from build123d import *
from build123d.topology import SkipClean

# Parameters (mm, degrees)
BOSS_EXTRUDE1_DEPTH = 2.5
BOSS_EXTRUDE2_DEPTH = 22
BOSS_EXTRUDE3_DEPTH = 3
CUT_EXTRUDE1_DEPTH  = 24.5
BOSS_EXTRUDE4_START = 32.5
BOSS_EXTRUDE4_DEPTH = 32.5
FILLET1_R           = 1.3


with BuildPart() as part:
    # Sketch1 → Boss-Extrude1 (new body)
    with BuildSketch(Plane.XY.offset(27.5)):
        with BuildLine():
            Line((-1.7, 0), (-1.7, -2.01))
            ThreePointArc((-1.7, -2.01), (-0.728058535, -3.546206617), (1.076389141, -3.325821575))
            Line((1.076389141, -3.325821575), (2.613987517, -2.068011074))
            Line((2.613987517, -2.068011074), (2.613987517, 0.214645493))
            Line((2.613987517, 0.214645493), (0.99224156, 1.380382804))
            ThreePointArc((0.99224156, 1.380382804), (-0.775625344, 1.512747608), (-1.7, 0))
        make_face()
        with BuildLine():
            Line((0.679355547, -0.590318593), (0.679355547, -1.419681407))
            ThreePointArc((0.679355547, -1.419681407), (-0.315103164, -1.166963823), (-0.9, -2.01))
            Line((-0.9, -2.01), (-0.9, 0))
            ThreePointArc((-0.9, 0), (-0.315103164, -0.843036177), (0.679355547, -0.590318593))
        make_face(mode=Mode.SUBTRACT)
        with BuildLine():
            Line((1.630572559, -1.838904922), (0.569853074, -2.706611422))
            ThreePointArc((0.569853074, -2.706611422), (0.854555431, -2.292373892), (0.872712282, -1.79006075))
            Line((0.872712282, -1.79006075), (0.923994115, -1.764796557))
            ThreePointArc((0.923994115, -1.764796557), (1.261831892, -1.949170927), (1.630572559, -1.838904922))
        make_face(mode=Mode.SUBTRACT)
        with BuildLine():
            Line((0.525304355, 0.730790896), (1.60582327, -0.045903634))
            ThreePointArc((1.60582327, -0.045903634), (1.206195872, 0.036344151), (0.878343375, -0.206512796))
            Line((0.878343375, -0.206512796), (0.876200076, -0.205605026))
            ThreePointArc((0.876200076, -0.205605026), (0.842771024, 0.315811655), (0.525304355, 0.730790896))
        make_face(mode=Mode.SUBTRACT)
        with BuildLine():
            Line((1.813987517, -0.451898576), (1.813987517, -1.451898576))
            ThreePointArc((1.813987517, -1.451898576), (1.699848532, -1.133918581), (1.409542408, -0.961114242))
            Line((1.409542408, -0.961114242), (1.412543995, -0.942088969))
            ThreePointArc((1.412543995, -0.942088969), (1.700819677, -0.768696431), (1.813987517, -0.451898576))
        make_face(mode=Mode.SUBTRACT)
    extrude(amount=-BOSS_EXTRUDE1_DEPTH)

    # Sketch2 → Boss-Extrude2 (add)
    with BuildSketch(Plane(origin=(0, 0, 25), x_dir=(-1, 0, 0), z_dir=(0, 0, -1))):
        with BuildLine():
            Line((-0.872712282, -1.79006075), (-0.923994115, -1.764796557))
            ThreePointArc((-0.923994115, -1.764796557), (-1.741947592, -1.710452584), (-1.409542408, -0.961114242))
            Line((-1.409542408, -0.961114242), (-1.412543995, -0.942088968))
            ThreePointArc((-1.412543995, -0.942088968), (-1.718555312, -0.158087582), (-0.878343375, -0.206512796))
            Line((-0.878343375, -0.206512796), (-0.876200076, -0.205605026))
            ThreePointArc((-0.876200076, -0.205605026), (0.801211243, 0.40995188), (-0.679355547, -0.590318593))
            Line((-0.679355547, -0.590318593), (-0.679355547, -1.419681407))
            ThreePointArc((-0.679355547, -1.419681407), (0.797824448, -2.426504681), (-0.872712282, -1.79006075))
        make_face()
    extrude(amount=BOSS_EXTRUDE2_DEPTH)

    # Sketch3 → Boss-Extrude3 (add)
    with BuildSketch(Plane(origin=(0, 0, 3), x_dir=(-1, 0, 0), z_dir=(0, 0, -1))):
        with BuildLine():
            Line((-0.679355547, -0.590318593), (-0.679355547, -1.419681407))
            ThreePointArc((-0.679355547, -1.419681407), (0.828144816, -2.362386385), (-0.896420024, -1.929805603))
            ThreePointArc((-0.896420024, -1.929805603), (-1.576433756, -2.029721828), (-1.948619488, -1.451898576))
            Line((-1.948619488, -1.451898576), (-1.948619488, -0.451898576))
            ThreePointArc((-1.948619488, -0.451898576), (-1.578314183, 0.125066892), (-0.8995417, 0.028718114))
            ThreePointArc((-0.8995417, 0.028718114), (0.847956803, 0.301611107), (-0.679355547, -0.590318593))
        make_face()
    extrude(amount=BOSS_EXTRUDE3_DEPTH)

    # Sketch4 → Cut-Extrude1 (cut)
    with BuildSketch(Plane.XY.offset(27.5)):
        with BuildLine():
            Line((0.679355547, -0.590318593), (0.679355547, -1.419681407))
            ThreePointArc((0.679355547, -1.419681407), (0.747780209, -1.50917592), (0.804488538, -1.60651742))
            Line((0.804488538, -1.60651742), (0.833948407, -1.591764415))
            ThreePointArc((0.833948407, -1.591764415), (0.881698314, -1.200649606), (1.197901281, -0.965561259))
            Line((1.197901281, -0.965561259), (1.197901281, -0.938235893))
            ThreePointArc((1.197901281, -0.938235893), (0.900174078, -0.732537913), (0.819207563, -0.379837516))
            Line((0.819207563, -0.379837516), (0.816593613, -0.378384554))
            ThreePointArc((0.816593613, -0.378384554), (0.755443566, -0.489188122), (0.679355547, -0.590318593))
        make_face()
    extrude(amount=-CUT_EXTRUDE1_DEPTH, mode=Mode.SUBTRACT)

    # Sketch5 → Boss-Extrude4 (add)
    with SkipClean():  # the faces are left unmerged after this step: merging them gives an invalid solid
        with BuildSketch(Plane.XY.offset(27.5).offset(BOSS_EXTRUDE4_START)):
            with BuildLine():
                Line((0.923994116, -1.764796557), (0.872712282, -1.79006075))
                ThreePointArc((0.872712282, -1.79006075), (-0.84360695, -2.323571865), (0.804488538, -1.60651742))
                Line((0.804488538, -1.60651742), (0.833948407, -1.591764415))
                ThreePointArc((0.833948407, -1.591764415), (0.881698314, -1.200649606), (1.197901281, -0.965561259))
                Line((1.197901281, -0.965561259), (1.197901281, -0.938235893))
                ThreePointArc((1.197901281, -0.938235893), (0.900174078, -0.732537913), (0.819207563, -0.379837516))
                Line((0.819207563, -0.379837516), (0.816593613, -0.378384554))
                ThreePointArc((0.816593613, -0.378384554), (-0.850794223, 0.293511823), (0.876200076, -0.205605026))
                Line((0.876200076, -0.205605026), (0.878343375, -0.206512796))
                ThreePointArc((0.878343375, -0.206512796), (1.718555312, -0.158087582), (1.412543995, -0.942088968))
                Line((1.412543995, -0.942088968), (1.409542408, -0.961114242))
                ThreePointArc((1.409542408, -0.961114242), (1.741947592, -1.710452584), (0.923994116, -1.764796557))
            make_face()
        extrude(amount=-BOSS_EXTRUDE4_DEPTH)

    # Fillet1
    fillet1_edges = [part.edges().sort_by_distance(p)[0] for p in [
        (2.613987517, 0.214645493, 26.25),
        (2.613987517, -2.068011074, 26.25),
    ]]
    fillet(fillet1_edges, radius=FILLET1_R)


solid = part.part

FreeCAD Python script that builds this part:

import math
import FreeCAD as App
import Part
import Sketcher

V = App.Vector
Q = App.Units.Quantity


def edges_at(feature, points):
    """Names of the edges that pass closest to the given points."""
    edges = feature.Shape.Edges
    near = lambda p: min(range(len(edges)), key=lambda i: edges[i].distToShape(Part.Vertex(*p))[0])
    return sorted({f"Edge{near(p) + 1}" for p in points})

doc = App.newDocument("Part")
body = doc.addObject("PartDesign::Body", "Body")

# Sketch on XY plane
sketch1 = doc.addObject("Sketcher::SketchObject", "Sketch")
body.addObject(sketch1)
sketch1.AttachmentSupport = (doc.XY_Plane, [""])
sketch1.MapMode = "FlatFace"
sketch1.AttachmentOffset = App.Placement(V(0, 0, 27.5), App.Rotation())
sketch1.addGeometry(Part.LineSegment(V(-1.7, 0, 0), V(-1.7, -2.01, 0)), False)
sketch1.addGeometry(Part.ArcOfCircle(Part.Circle(V(0, -2.01, 0), V(0, 0, 1), 1.7), math.radians(180), math.radians(309)), False)
sketch1.addGeometry(Part.LineSegment(V(1.0764, -3.3258, 0), V(2.614, -2.068, 0)), False)
sketch1.addGeometry(Part.LineSegment(V(2.614, -2.068, 0), V(2.614, 0.2146, 0)), False)
sketch1.addGeometry(Part.LineSegment(V(2.614, 0.2146, 0), V(0.9922, 1.3804, 0)), False)
sketch1.addGeometry(Part.ArcOfCircle(Part.Circle(V(0, 0, 0), V(0, 0, 1), 1.7), math.radians(54), math.radians(180)), False)
sketch1.addGeometry(Part.ArcOfCircle(Part.Circle(V(0, 0, 0), V(0, 0, 1), 0.9), math.radians(180), math.radians(319)), False)
sketch1.addGeometry(Part.LineSegment(V(0.6794, -0.5903, 0), V(0.6794, -1.4197, 0)), False)
sketch1.addGeometry(Part.ArcOfCircle(Part.Circle(V(0, -2.01, 0), V(0, 0, 1), 0.9), math.radians(41), math.radians(180)), False)
sketch1.addGeometry(Part.LineSegment(V(-0.9, -2.01, 0), V(-0.9, 0, 0)), False)
sketch1.addGeometry(Part.ArcOfCircle(Part.Circle(V(1.314, -1.4519, 0), V(0, 0, 1), 0.5), math.radians(-141), math.radians(-51)), False)
sketch1.addGeometry(Part.LineSegment(V(1.6306, -1.8389, 0), V(0.5699, -2.7066, 0)), False)
sketch1.addGeometry(Part.ArcOfCircle(Part.Circle(V(0, -2.01, 0), V(0, 0, 1), 0.9), math.radians(-51), math.radians(14)), False)
sketch1.addGeometry(Part.LineSegment(V(0.8727, -1.7901, 0), V(0.924, -1.7648, 0)), False)
sketch1.addGeometry(Part.ArcOfCircle(Part.Circle(V(1.314, -0.4519, 0), V(0, 0, 1), 0.5), math.radians(-79), math.radians(0)), False)
sketch1.addGeometry(Part.LineSegment(V(1.814, -0.4519, 0), V(1.814, -1.4519, 0)), False)
sketch1.addGeometry(Part.ArcOfCircle(Part.Circle(V(1.314, -1.4519, 0), V(0, 0, 1), 0.5), math.radians(0), math.radians(79)), False)
sketch1.addGeometry(Part.LineSegment(V(1.4095, -0.9611, 0), V(1.4125, -0.9421, 0)), False)
sketch1.addGeometry(Part.ArcOfCircle(Part.Circle(V(0, 0, 0), V(0, 0, 1), 0.9), math.radians(-13), math.radians(54)), False)
sketch1.addGeometry(Part.LineSegment(V(0.5253, 0.7308, 0), V(1.6058, -0.0459, 0)), False)
sketch1.addGeometry(Part.ArcOfCircle(Part.Circle(V(1.314, -0.4519, 0), V(0, 0, 1), 0.5), math.radians(54), math.radians(151)), False)
sketch1.addGeometry(Part.LineSegment(V(0.8783, -0.2065, 0), V(0.8762, -0.2056, 0)), False)
sketch1.addConstraint(Sketcher.Constraint("Tangent", 0, 2, 1, 1))
sketch1.addConstraint(Sketcher.Constraint("Tangent", 1, 2, 2, 1))
sketch1.addConstraint(Sketcher.Constraint("Coincident", 2, 2, 3, 1))
sketch1.addConstraint(Sketcher.Constraint("Coincident", 3, 2, 4, 1))
sketch1.addConstraint(Sketcher.Constraint("Tangent", 4, 2, 5, 1))
sketch1.addConstraint(Sketcher.Constraint("Tangent", 5, 2, 0, 1))
sketch1.addConstraint(Sketcher.Constraint("Coincident", 6, 2, 7, 1))
sketch1.addConstraint(Sketcher.Constraint("Coincident", 7, 2, 8, 1))
sketch1.addConstraint(Sketcher.Constraint("Tangent", 8, 2, 9, 1))
sketch1.addConstraint(Sketcher.Constraint("Tangent", 9, 2, 6, 1))
sketch1.addConstraint(Sketcher.Constraint("Tangent", 10, 2, 11, 1))
sketch1.addConstraint(Sketcher.Constraint("Tangent", 11, 2, 12, 1))
sketch1.addConstraint(Sketcher.Constraint("Coincident", 12, 2, 13, 1))
sketch1.addConstraint(Sketcher.Constraint("Coincident", 13, 2, 10, 1))
sketch1.addConstraint(Sketcher.Constraint("Tangent", 14, 2, 15, 1))
sketch1.addConstraint(Sketcher.Constraint("Tangent", 15, 2, 16, 1))
sketch1.addConstraint(Sketcher.Constraint("Coincident", 16, 2, 17, 1))
sketch1.addConstraint(Sketcher.Constraint("Coincident", 17, 2, 14, 1))
sketch1.addConstraint(Sketcher.Constraint("Tangent", 18, 2, 19, 1))
sketch1.addConstraint(Sketcher.Constraint("Tangent", 19, 2, 20, 1))
sketch1.addConstraint(Sketcher.Constraint("Coincident", 20, 2, 21, 1))
sketch1.addConstraint(Sketcher.Constraint("Coincident", 21, 2, 18, 1))
sketch1.addConstraint(Sketcher.Constraint("Vertical", 0))
sketch1.addConstraint(Sketcher.Constraint("Vertical", 3))
sketch1.addConstraint(Sketcher.Constraint("Vertical", 7))
sketch1.addConstraint(Sketcher.Constraint("Vertical", 9))
sketch1.addConstraint(Sketcher.Constraint("Vertical", 15))
sketch1.addConstraint(Sketcher.Constraint("Coincident", 5, 3, -1, 1))
sketch1.addConstraint(Sketcher.Constraint("Coincident", 6, 3, -1, 1))
sketch1.addConstraint(Sketcher.Constraint("Coincident", 18, 3, -1, 1))
sketch1.addConstraint(Sketcher.Constraint("Coincident", 8, 3, 1, 3))
sketch1.addConstraint(Sketcher.Constraint("Coincident", 12, 3, 1, 3))
sketch1.addConstraint(Sketcher.Constraint("Coincident", 16, 3, 10, 3))
sketch1.addConstraint(Sketcher.Constraint("Coincident", 20, 3, 14, 3))
sketch1.addConstraint(Sketcher.Constraint("Equal", 1, 5))
sketch1.addConstraint(Sketcher.Constraint("Equal", 8, 12))
sketch1.addConstraint(Sketcher.Constraint("Equal", 10, 14))
sketch1.addConstraint(Sketcher.Constraint("Equal", 14, 16))
sketch1.addConstraint(Sketcher.Constraint("Equal", 12, 18))
sketch1.addConstraint(Sketcher.Constraint("Equal", 16, 20))
sketch1.addConstraint(Sketcher.Constraint("Parallel", 2, 11))
sketch1.addConstraint(Sketcher.Constraint("Parallel", 4, 19))
sketch1.addConstraint(Sketcher.Constraint("Radius", 1, Q("1.7 mm")))
sketch1.addConstraint(Sketcher.Constraint("Radius", 6, Q("0.9 mm")))
sketch1.addConstraint(Sketcher.Constraint("Radius", 10, Q("0.5 mm")))
sketch1.addConstraint(Sketcher.Constraint("DistanceY", 15, 2, 15, 1, Q("1 mm")))
sketch1.addConstraint(Sketcher.Constraint("DistanceY", 0, 2, 0, 1, Q("2.01 mm")))
sketch1.addConstraint(Sketcher.Constraint("DistanceX", 16, 3, 2, 2, Q("1.3 mm")))
sketch1.addConstraint(Sketcher.Constraint("DistanceX", 16, 2, 17, 2, Q("0.003002 mm")))
sketch1.addConstraint(Sketcher.Constraint("DistanceY", 10, 3, -1, 1, Q("1.451899 mm")))
sketch1.addConstraint(Sketcher.Constraint("DistanceX", -1, 1, 21, 2, Q("0.8762 mm")))
sketch1.addConstraint(Sketcher.Constraint("DistanceX", 1, 2, 10, 3, Q("0.237598 mm")))
sketch1.addConstraint(Sketcher.Constraint("Distance", 17, Q("0.019261 mm")))
sketch1.addConstraint(Sketcher.Constraint("DistanceY", 7, 2, 7, 1, Q("0.829363 mm")))
sketch1.addConstraint(Sketcher.Constraint("DistanceY", 12, 2, -1, 1, Q("1.790061 mm")))
sketch1.addConstraint(Sketcher.Constraint("DistanceX", 12, 2, 13, 2, Q("0.051282 mm")))
sketch1.addConstraint(Sketcher.Constraint("DistanceX", 20, 2, 19, 2, Q("0.72748 mm")))
pad1 = doc.addObject("PartDesign::Pad", "Pad")
body.addObject(pad1)
pad1.Profile = sketch1
pad1.Length = 2.5
pad1.Reversed = True

# Sketch on XY plane
sketch2 = doc.addObject("Sketcher::SketchObject", "Sketch001")
body.addObject(sketch2)
sketch2.AttachmentSupport = (doc.XY_Plane, [""])
sketch2.MapMode = "FlatFace"
sketch2.AttachmentOffset = App.Placement(V(0, 0, 25), App.Rotation())
sketch2.addGeometry(Part.LineSegment(V(0.924, -1.7648, 0), V(0.8727, -1.7901, 0)), False)
sketch2.addGeometry(Part.ArcOfCircle(Part.Circle(V(0, -2.01, 0), V(0, 0, 1), 0.9), math.radians(41), math.radians(374)), False)
sketch2.addGeometry(Part.LineSegment(V(0.6794, -1.4197, 0), V(0.6794, -0.5903, 0)), False)
sketch2.addGeometry(Part.ArcOfCircle(Part.Circle(V(0, 0, 0), V(0, 0, 1), 0.9), math.radians(-13), math.radians(319)), False)
sketch2.addGeometry(Part.LineSegment(V(0.8762, -0.2056, 0), V(0.8783, -0.2065, 0)), False)
sketch2.addGeometry(Part.ArcOfCircle(Part.Circle(V(1.314, -0.4519, 0), V(0, 0, 1), 0.5), math.radians(-79), math.radians(151)), False)
sketch2.addGeometry(Part.LineSegment(V(1.4125, -0.9421, 0), V(1.4095, -0.9611, 0)), False)
sketch2.addGeometry(Part.ArcOfCircle(Part.Circle(V(1.314, -1.4519, 0), V(0, 0, 1), 0.5), math.radians(-141), math.radians(79)), False)
sketch2.addConstraint(Sketcher.Constraint("Coincident", 0, 2, 1, 2))
sketch2.addConstraint(Sketcher.Constraint("Coincident", 1, 1, 2, 1))
sketch2.addConstraint(Sketcher.Constraint("Coincident", 2, 2, 3, 2))
sketch2.addConstraint(Sketcher.Constraint("Coincident", 3, 1, 4, 1))
sketch2.addConstraint(Sketcher.Constraint("Coincident", 4, 2, 5, 2))
sketch2.addConstraint(Sketcher.Constraint("Coincident", 5, 1, 6, 1))
sketch2.addConstraint(Sketcher.Constraint("Coincident", 6, 2, 7, 2))
sketch2.addConstraint(Sketcher.Constraint("Coincident", 7, 1, 0, 1))
sketch2.addConstraint(Sketcher.Constraint("Vertical", 2))
sketch2.addConstraint(Sketcher.Constraint("Coincident", 3, 3, -1, 1))
sketch2.addConstraint(Sketcher.Constraint("Equal", 1, 3))
sketch2.addConstraint(Sketcher.Constraint("Equal", 5, 7))
sketch2.addConstraint(Sketcher.Constraint("PointOnObject", 1, 3, -2))
sketch2.addConstraint(Sketcher.Constraint("Vertical", 5, 3, 7, 3))
sketch2.addConstraint(Sketcher.Constraint("Radius", 1, Q("0.9 mm")))
sketch2.addConstraint(Sketcher.Constraint("Radius", 5, Q("0.5 mm")))
sketch2.addConstraint(Sketcher.Constraint("DistanceY", 7, 3, 5, 3, Q("1 mm")))
sketch2.addConstraint(Sketcher.Constraint("DistanceY", 1, 3, -1, 1, Q("2.01 mm")))
sketch2.addConstraint(Sketcher.Constraint("DistanceX", 6, 2, 5, 1, Q("0.003002 mm")))
sketch2.addConstraint(Sketcher.Constraint("DistanceY", 5, 3, -1, 1, Q("0.451899 mm")))
sketch2.addConstraint(Sketcher.Constraint("DistanceX", -1, 1, 3, 1, Q("0.8762 mm")))
sketch2.addConstraint(Sketcher.Constraint("DistanceX", 4, 2, 5, 1, Q("0.534201 mm")))
sketch2.addConstraint(Sketcher.Constraint("Distance", 6, Q("0.019261 mm")))
sketch2.addConstraint(Sketcher.Constraint("DistanceY", 2, 1, 2, 2, Q("0.829363 mm")))
sketch2.addConstraint(Sketcher.Constraint("DistanceY", 0, 2, -1, 1, Q("1.790061 mm")))
sketch2.addConstraint(Sketcher.Constraint("DistanceX", 1, 1, 7, 3, Q("0.634632 mm")))
sketch2.addConstraint(Sketcher.Constraint("DistanceX", 0, 2, 7, 1, Q("0.051282 mm")))
pad2 = doc.addObject("PartDesign::Pad", "Pad001")
body.addObject(pad2)
pad2.Profile = sketch2
pad2.Length = 22
pad2.Reversed = True

# Sketch on XY plane
sketch3 = doc.addObject("Sketcher::SketchObject", "Sketch002")
body.addObject(sketch3)
sketch3.AttachmentSupport = (doc.XY_Plane, [""])
sketch3.MapMode = "FlatFace"
sketch3.AttachmentOffset = App.Placement(V(0, 0, 3), App.Rotation())
sketch3.addGeometry(Part.LineSegment(V(0.7, -1.4, 0), V(0.7, -0.6, 0)), False)
sketch3.addGeometry(Part.ArcOfCircle(Part.Circle(V(0, 0, 0), V(0, 0, 1), 0.9), math.radians(2), math.radians(319)), False)
sketch3.addGeometry(Part.ArcOfCircle(Part.Circle(V(1.3, -0.5, 0), V(0, 0, 1), 0.6), math.radians(0), math.radians(131)), False)
sketch3.addGeometry(Part.LineSegment(V(1.9, -0.5, 0), V(1.9, -1.5, 0)), False)
sketch3.addGeometry(Part.ArcOfCircle(Part.Circle(V(1.3, -1.5, 0), V(0, 0, 1), 0.6), math.radians(-131), math.radians(0)), False)
sketch3.addGeometry(Part.ArcOfCircle(Part.Circle(V(0, -2, 0), V(0, 0, 1), 0.9), math.radians(41), math.radians(365)), False)
sketch3.addConstraint(Sketcher.Constraint("Coincident", 0, 2, 1, 2))
sketch3.addConstraint(Sketcher.Constraint("Coincident", 1, 1, 2, 2))
sketch3.addConstraint(Sketcher.Constraint("Tangent", 2, 1, 3, 1))
sketch3.addConstraint(Sketcher.Constraint("Tangent", 3, 2, 4, 2))
sketch3.addConstraint(Sketcher.Constraint("Coincident", 4, 1, 5, 2))
sketch3.addConstraint(Sketcher.Constraint("Coincident", 5, 1, 0, 1))
sketch3.addConstraint(Sketcher.Constraint("Vertical", 0))
sketch3.addConstraint(Sketcher.Constraint("Vertical", 3))
sketch3.addConstraint(Sketcher.Constraint("Coincident", 1, 3, -1, 1))
sketch3.addConstraint(Sketcher.Constraint("Equal", 2, 4))
sketch3.addConstraint(Sketcher.Constraint("Equal", 1, 5))
sketch3.addConstraint(Sketcher.Constraint("PointOnObject", 5, 3, -2))
sketch3.addConstraint(Sketcher.Constraint("Radius", 1, Q("0.9 mm")))
sketch3.addConstraint(Sketcher.Constraint("DistanceY", 3, 2, 3, 1, Q("1 mm")))
sketch3.addConstraint(Sketcher.Constraint("DistanceY", 5, 3, -1, 1, Q("2.01 mm")))
sketch3.addConstraint(Sketcher.Constraint("Radius", 2, Q("0.634632 mm")))
sketch3.addConstraint(Sketcher.Constraint("DistanceY", 2, 3, -1, 1, Q("0.451899 mm")))
sketch3.addConstraint(Sketcher.Constraint("DistanceX", 4, 1, 3, 2, Q("1.052199 mm")))
sketch3.addConstraint(Sketcher.Constraint("DistanceY", 0, 1, 0, 2, Q("0.829363 mm")))
pad3 = doc.addObject("PartDesign::Pad", "Pad002")
body.addObject(pad3)
pad3.Profile = sketch3
pad3.Length = 3
pad3.Reversed = True

# Sketch on XY plane
sketch4 = doc.addObject("Sketcher::SketchObject", "Sketch003")
body.addObject(sketch4)
sketch4.AttachmentSupport = (doc.XY_Plane, [""])
sketch4.MapMode = "FlatFace"
sketch4.AttachmentOffset = App.Placement(V(0, 0, 27.5), App.Rotation())
sketch4.addGeometry(Part.LineSegment(V(0.6794, -0.5903, 0), V(0.6794, -1.4197, 0)), False)
sketch4.addGeometry(Part.ArcOfCircle(Part.Circle(V(0, -2.01, 0), V(0, 0, 1), 0.9), math.radians(26.64), math.radians(40.99)), False)
sketch4.addGeometry(Part.LineSegment(V(0.8045, -1.6065, 0), V(0.8339, -1.5918, 0)), False)
sketch4.addGeometry(Part.ArcOfCircle(Part.Circle(V(1.314, -1.4519, 0), V(0, 0, 1), 0.5), math.radians(103), math.radians(196)), False)
sketch4.addGeometry(Part.LineSegment(V(1.1979, -0.9656, 0), V(1.1979, -0.9382, 0)), False)
sketch4.addGeometry(Part.ArcOfCircle(Part.Circle(V(1.314, -0.4519, 0), V(0, 0, 1), 0.5), math.radians(172), math.radians(257)), False)
sketch4.addGeometry(Part.LineSegment(V(0.8192, -0.3798, 0), V(0.8166, -0.3784, 0)), False)
sketch4.addGeometry(Part.ArcOfCircle(Part.Circle(V(0, 0, 0), V(0, 0, 1), 0.9), math.radians(-40.99), math.radians(-24.86)), False)
sketch4.addConstraint(Sketcher.Constraint("Coincident", 0, 2, 1, 2))
sketch4.addConstraint(Sketcher.Constraint("Coincident", 1, 1, 2, 1))
sketch4.addConstraint(Sketcher.Constraint("Coincident", 2, 2, 3, 2))
sketch4.addConstraint(Sketcher.Constraint("Coincident", 3, 1, 4, 1))
sketch4.addConstraint(Sketcher.Constraint("Coincident", 4, 2, 5, 2))
sketch4.addConstraint(Sketcher.Constraint("Coincident", 5, 1, 6, 1))
sketch4.addConstraint(Sketcher.Constraint("Coincident", 6, 2, 7, 2))
sketch4.addConstraint(Sketcher.Constraint("Coincident", 7, 1, 0, 1))
sketch4.addConstraint(Sketcher.Constraint("Vertical", 0))
sketch4.addConstraint(Sketcher.Constraint("Vertical", 4))
sketch4.addConstraint(Sketcher.Constraint("Coincident", 7, 3, -1, 1))
sketch4.addConstraint(Sketcher.Constraint("Equal", 3, 5))
sketch4.addConstraint(Sketcher.Constraint("Equal", 1, 7))
sketch4.addConstraint(Sketcher.Constraint("PointOnObject", 1, 3, -2))
sketch4.addConstraint(Sketcher.Constraint("Vertical", 3, 3, 5, 3))
sketch4.addConstraint(Sketcher.Constraint("Radius", 1, Q("0.9 mm")))
sketch4.addConstraint(Sketcher.Constraint("Radius", 3, Q("0.5 mm")))
sketch4.addConstraint(Sketcher.Constraint("DistanceY", 3, 3, 5, 3, Q("1 mm")))
sketch4.addConstraint(Sketcher.Constraint("DistanceY", 1, 3, -1, 1, Q("2.01 mm")))
sketch4.addConstraint(Sketcher.Constraint("DistanceY", 3, 3, -1, 1, Q("1.451899 mm")))
sketch4.addConstraint(Sketcher.Constraint("DistanceX", -1, 1, 3, 1, Q("1.197901 mm")))
sketch4.addConstraint(Sketcher.Constraint("DistanceX", 1, 1, 3, 3, Q("0.509499 mm")))
sketch4.addConstraint(Sketcher.Constraint("DistanceY", 4, 2, 5, 1, Q("0.558398 mm")))
sketch4.addConstraint(Sketcher.Constraint("Distance", 6, Q("0.002991 mm")))
sketch4.addConstraint(Sketcher.Constraint("DistanceY", 0, 2, 0, 1, Q("0.829363 mm")))
sketch4.addConstraint(Sketcher.Constraint("DistanceY", 4, 1, 4, 2, Q("0.027325 mm")))
sketch4.addConstraint(Sketcher.Constraint("DistanceX", -1, 1, 2, 2, Q("0.833948 mm")))
pocket1 = doc.addObject("PartDesign::Pocket", "Pocket")
body.addObject(pocket1)
pocket1.Profile = sketch4
pocket1.Length = 24.5

# Sketch on XY plane
sketch5 = doc.addObject("Sketcher::SketchObject", "Sketch004")
body.addObject(sketch5)
sketch5.AttachmentSupport = (doc.XY_Plane, [""])
sketch5.MapMode = "FlatFace"
sketch5.AttachmentOffset = App.Placement(V(0, 0, 60), App.Rotation())
sketch5.addGeometry(Part.LineSegment(V(0.8727, -1.7901, 0), V(0.924, -1.7648, 0)), False)
sketch5.addGeometry(Part.ArcOfCircle(Part.Circle(V(1.314, -1.4519, 0), V(0, 0, 1), 0.5), math.radians(-141), math.radians(79)), False)
sketch5.addGeometry(Part.LineSegment(V(1.4095, -0.9611, 0), V(1.4125, -0.9421, 0)), False)
sketch5.addGeometry(Part.ArcOfCircle(Part.Circle(V(1.314, -0.4519, 0), V(0, 0, 1), 0.5), math.radians(-79), math.radians(151)), False)
sketch5.addGeometry(Part.LineSegment(V(0.8783, -0.2065, 0), V(0.8762, -0.2056, 0)), False)
sketch5.addGeometry(Part.ArcOfCircle(Part.Circle(V(0, 0, 0), V(0, 0, 1), 0.9), math.radians(-13), math.radians(335)), False)
sketch5.addGeometry(Part.LineSegment(V(0.8166, -0.3784, 0), V(0.8192, -0.3798, 0)), False)
sketch5.addGeometry(Part.ArcOfCircle(Part.Circle(V(1.314, -0.4519, 0), V(0, 0, 1), 0.5), math.radians(172), math.radians(257)), False)
sketch5.addGeometry(Part.LineSegment(V(1.1979, -0.9382, 0), V(1.1979, -0.9656, 0)), False)
sketch5.addGeometry(Part.ArcOfCircle(Part.Circle(V(1.314, -1.4519, 0), V(0, 0, 1), 0.5), math.radians(103), math.radians(196)), False)
sketch5.addGeometry(Part.LineSegment(V(0.8339, -1.5918, 0), V(0.8045, -1.6065, 0)), False)
sketch5.addGeometry(Part.ArcOfCircle(Part.Circle(V(0, -2.01, 0), V(0, 0, 1), 0.9), math.radians(27), math.radians(374)), False)
sketch5.addConstraint(Sketcher.Constraint("Coincident", 0, 2, 1, 1))
sketch5.addConstraint(Sketcher.Constraint("Coincident", 1, 2, 2, 1))
sketch5.addConstraint(Sketcher.Constraint("Coincident", 2, 2, 3, 1))
sketch5.addConstraint(Sketcher.Constraint("Coincident", 3, 2, 4, 1))
sketch5.addConstraint(Sketcher.Constraint("Coincident", 4, 2, 5, 1))
sketch5.addConstraint(Sketcher.Constraint("Coincident", 5, 2, 6, 1))
sketch5.addConstraint(Sketcher.Constraint("Coincident", 6, 2, 7, 1))
sketch5.addConstraint(Sketcher.Constraint("Coincident", 7, 2, 8, 1))
sketch5.addConstraint(Sketcher.Constraint("Coincident", 8, 2, 9, 1))
sketch5.addConstraint(Sketcher.Constraint("Coincident", 9, 2, 10, 1))
sketch5.addConstraint(Sketcher.Constraint("Coincident", 10, 2, 11, 1))
sketch5.addConstraint(Sketcher.Constraint("Coincident", 11, 2, 0, 1))
sketch5.addConstraint(Sketcher.Constraint("Vertical", 8))
sketch5.addConstraint(Sketcher.Constraint("Coincident", 5, 3, -1, 1))
sketch5.addConstraint(Sketcher.Constraint("Coincident", 7, 3, 3, 3))
sketch5.addConstraint(Sketcher.Constraint("Coincident", 9, 3, 1, 3))
sketch5.addConstraint(Sketcher.Constraint("Equal", 1, 3))
sketch5.addConstraint(Sketcher.Constraint("Equal", 3, 7))
sketch5.addConstraint(Sketcher.Constraint("Equal", 7, 9))
sketch5.addConstraint(Sketcher.Constraint("Equal", 5, 11))
sketch5.addConstraint(Sketcher.Constraint("PointOnObject", 11, 3, -2))
sketch5.addConstraint(Sketcher.Constraint("Vertical", 1, 3, 3, 3))
sketch5.addConstraint(Sketcher.Constraint("Radius", 1, Q("0.5 mm")))
sketch5.addConstraint(Sketcher.Constraint("Radius", 5, Q("0.9 mm")))
sketch5.addConstraint(Sketcher.Constraint("DistanceY", 1, 3, 3, 3, Q("1 mm")))
sketch5.addConstraint(Sketcher.Constraint("DistanceY", 11, 3, -1, 1, Q("2.01 mm")))
sketch5.addConstraint(Sketcher.Constraint("DistanceX", 1, 2, 2, 2, Q("0.003002 mm")))
sketch5.addConstraint(Sketcher.Constraint("DistanceY", 1, 3, -1, 1, Q("1.451899 mm")))
sketch5.addConstraint(Sketcher.Constraint("DistanceX", -1, 1, 4, 2, Q("0.8762 mm")))
sketch5.addConstraint(Sketcher.Constraint("DistanceX", -1, 1, 7, 2, Q("1.197901 mm")))
sketch5.addConstraint(Sketcher.Constraint("DistanceX", 3, 2, 2, 2, Q("0.534201 mm")))
sketch5.addConstraint(Sketcher.Constraint("DistanceY", 1, 2, 3, 2, Q("0.754601 mm")))
sketch5.addConstraint(Sketcher.Constraint("DistanceX", 10, 2, 9, 3, Q("0.509499 mm")))
sketch5.addConstraint(Sketcher.Constraint("Distance", 6, Q("0.002991 mm")))
sketch5.addConstraint(Sketcher.Constraint("DistanceY", 8, 2, 8, 1, Q("0.027325 mm")))
sketch5.addConstraint(Sketcher.Constraint("DistanceX", -1, 1, 9, 2, Q("0.833948 mm")))
sketch5.addConstraint(Sketcher.Constraint("DistanceY", 11, 2, -1, 1, Q("1.790061 mm")))
sketch5.addConstraint(Sketcher.Constraint("DistanceX", 0, 2, 1, 2, Q("0.485548 mm")))
sketch5.addConstraint(Sketcher.Constraint("DistanceX", 5, 2, 3, 2, Q("0.06175 mm")))
pad4 = doc.addObject("PartDesign::Pad", "Pad003")
body.addObject(pad4)
pad4.Profile = sketch5
pad4.Length = 32.5
pad4.Reversed = True
doc.recompute()

fillet = doc.addObject("PartDesign::Fillet", "Fillet")
body.addObject(fillet)
fillet.Base = (pad4, edges_at(pad4, [(2.614, 0.215, 26.25), (2.614, -2.068, 26.25)]))
fillet.Radius = 1.3

doc.recompute()
